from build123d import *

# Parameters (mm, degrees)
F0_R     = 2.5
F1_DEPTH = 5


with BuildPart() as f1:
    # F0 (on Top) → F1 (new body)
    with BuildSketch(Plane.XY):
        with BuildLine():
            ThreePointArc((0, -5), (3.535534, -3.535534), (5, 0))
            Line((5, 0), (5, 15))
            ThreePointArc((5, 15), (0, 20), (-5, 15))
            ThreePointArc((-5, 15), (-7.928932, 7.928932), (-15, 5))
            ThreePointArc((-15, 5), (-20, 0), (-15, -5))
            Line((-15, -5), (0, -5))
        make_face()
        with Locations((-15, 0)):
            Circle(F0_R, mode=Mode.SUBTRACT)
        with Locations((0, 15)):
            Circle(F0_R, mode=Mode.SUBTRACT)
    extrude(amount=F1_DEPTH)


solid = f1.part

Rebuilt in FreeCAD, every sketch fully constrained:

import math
import FreeCAD as App
import Part
import Sketcher
from FreeCAD import Vector

doc = App.newDocument("Part")
body = doc.addObject("PartDesign::Body", "Body")

# Sketch on XY plane
sketch1 = body.newObject("Sketcher::SketchObject", "Sketch")
sketch1.AttachmentSupport = (doc.getObject("XY_Plane"), [""])
sketch1.MapMode = "FlatFace"
sketch1.addGeometry(Part.ArcOfCircle(Part.Circle(Vector(0, 0, 0), Vector(0, 0, 1), 5), math.radians(-90), math.radians(0)), False)
sketch1.addGeometry(Part.LineSegment(Vector(5, 0, 0), Vector(5, 15, 0)), False)
sketch1.addGeometry(Part.ArcOfCircle(Part.Circle(Vector(0, 15, 0), Vector(0, 0, 1), 5), math.radians(0), math.radians(180)), False)
sketch1.addGeometry(Part.ArcOfCircle(Part.Circle(Vector(-15, 15, 0), Vector(0, 0, 1), 10), math.radians(-90), math.radians(0)), False)
sketch1.addGeometry(Part.ArcOfCircle(Part.Circle(Vector(-15, 0, 0), Vector(0, 0, 1), 5), math.radians(90), math.radians(270)), False)
sketch1.addGeometry(Part.LineSegment(Vector(-15, -5, 0), Vector(0, -5, 0)), False)
sketch1.addGeometry(Part.Circle(Vector(-15, 0, 0), Vector(0, 0, 1), 2.5), False)
sketch1.addGeometry(Part.Circle(Vector(0, 15, 0), Vector(0, 0, 1), 2.5), False)
sketch1.addConstraint(Sketcher.Constraint("Tangent", 0, 2, 1, 1))
sketch1.addConstraint(Sketcher.Constraint("Tangent", 1, 2, 2, 1))
sketch1.addConstraint(Sketcher.Constraint("Tangent", 2, 2, 3, 2))
sketch1.addConstraint(Sketcher.Constraint("Tangent", 3, 1, 4, 1))
sketch1.addConstraint(Sketcher.Constraint("Tangent", 4, 2, 5, 1))
sketch1.addConstraint(Sketcher.Constraint("Tangent", 5, 2, 0, 1))
sketch1.addConstraint(Sketcher.Constraint("Vertical", 1))
sketch1.addConstraint(Sketcher.Constraint("Horizontal", 5))
sketch1.addConstraint(Sketcher.Constraint("Coincident", 0, 3, -1, 1))
sketch1.addConstraint(Sketcher.Constraint("Coincident", 6, 3, 4, 3))
sketch1.addConstraint(Sketcher.Constraint("Coincident", 7, 3, 2, 3))
sketch1.addConstraint(Sketcher.Constraint("Equal", 0, 2))
sketch1.addConstraint(Sketcher.Constraint("Equal", 2, 4))
sketch1.addConstraint(Sketcher.Constraint("Equal", 6, 7))
sketch1.addConstraint(Sketcher.Constraint("Horizontal", 2, 3, 3, 3))
sketch1.addConstraint(Sketcher.Constraint("Vertical", 3, 3, 4, 3))
sketch1.addConstraint(Sketcher.Constraint("Diameter", 6, 5.0))
sketch1.addConstraint(Sketcher.Constraint("Radius", 0, 5.0))
sketch1.addConstraint(Sketcher.Constraint("Radius", 3, 9.999999))
pad1 = body.newObject("PartDesign::Pad", "Pad")
pad1.Profile = sketch1
pad1.Length = 5

doc.recompute()
